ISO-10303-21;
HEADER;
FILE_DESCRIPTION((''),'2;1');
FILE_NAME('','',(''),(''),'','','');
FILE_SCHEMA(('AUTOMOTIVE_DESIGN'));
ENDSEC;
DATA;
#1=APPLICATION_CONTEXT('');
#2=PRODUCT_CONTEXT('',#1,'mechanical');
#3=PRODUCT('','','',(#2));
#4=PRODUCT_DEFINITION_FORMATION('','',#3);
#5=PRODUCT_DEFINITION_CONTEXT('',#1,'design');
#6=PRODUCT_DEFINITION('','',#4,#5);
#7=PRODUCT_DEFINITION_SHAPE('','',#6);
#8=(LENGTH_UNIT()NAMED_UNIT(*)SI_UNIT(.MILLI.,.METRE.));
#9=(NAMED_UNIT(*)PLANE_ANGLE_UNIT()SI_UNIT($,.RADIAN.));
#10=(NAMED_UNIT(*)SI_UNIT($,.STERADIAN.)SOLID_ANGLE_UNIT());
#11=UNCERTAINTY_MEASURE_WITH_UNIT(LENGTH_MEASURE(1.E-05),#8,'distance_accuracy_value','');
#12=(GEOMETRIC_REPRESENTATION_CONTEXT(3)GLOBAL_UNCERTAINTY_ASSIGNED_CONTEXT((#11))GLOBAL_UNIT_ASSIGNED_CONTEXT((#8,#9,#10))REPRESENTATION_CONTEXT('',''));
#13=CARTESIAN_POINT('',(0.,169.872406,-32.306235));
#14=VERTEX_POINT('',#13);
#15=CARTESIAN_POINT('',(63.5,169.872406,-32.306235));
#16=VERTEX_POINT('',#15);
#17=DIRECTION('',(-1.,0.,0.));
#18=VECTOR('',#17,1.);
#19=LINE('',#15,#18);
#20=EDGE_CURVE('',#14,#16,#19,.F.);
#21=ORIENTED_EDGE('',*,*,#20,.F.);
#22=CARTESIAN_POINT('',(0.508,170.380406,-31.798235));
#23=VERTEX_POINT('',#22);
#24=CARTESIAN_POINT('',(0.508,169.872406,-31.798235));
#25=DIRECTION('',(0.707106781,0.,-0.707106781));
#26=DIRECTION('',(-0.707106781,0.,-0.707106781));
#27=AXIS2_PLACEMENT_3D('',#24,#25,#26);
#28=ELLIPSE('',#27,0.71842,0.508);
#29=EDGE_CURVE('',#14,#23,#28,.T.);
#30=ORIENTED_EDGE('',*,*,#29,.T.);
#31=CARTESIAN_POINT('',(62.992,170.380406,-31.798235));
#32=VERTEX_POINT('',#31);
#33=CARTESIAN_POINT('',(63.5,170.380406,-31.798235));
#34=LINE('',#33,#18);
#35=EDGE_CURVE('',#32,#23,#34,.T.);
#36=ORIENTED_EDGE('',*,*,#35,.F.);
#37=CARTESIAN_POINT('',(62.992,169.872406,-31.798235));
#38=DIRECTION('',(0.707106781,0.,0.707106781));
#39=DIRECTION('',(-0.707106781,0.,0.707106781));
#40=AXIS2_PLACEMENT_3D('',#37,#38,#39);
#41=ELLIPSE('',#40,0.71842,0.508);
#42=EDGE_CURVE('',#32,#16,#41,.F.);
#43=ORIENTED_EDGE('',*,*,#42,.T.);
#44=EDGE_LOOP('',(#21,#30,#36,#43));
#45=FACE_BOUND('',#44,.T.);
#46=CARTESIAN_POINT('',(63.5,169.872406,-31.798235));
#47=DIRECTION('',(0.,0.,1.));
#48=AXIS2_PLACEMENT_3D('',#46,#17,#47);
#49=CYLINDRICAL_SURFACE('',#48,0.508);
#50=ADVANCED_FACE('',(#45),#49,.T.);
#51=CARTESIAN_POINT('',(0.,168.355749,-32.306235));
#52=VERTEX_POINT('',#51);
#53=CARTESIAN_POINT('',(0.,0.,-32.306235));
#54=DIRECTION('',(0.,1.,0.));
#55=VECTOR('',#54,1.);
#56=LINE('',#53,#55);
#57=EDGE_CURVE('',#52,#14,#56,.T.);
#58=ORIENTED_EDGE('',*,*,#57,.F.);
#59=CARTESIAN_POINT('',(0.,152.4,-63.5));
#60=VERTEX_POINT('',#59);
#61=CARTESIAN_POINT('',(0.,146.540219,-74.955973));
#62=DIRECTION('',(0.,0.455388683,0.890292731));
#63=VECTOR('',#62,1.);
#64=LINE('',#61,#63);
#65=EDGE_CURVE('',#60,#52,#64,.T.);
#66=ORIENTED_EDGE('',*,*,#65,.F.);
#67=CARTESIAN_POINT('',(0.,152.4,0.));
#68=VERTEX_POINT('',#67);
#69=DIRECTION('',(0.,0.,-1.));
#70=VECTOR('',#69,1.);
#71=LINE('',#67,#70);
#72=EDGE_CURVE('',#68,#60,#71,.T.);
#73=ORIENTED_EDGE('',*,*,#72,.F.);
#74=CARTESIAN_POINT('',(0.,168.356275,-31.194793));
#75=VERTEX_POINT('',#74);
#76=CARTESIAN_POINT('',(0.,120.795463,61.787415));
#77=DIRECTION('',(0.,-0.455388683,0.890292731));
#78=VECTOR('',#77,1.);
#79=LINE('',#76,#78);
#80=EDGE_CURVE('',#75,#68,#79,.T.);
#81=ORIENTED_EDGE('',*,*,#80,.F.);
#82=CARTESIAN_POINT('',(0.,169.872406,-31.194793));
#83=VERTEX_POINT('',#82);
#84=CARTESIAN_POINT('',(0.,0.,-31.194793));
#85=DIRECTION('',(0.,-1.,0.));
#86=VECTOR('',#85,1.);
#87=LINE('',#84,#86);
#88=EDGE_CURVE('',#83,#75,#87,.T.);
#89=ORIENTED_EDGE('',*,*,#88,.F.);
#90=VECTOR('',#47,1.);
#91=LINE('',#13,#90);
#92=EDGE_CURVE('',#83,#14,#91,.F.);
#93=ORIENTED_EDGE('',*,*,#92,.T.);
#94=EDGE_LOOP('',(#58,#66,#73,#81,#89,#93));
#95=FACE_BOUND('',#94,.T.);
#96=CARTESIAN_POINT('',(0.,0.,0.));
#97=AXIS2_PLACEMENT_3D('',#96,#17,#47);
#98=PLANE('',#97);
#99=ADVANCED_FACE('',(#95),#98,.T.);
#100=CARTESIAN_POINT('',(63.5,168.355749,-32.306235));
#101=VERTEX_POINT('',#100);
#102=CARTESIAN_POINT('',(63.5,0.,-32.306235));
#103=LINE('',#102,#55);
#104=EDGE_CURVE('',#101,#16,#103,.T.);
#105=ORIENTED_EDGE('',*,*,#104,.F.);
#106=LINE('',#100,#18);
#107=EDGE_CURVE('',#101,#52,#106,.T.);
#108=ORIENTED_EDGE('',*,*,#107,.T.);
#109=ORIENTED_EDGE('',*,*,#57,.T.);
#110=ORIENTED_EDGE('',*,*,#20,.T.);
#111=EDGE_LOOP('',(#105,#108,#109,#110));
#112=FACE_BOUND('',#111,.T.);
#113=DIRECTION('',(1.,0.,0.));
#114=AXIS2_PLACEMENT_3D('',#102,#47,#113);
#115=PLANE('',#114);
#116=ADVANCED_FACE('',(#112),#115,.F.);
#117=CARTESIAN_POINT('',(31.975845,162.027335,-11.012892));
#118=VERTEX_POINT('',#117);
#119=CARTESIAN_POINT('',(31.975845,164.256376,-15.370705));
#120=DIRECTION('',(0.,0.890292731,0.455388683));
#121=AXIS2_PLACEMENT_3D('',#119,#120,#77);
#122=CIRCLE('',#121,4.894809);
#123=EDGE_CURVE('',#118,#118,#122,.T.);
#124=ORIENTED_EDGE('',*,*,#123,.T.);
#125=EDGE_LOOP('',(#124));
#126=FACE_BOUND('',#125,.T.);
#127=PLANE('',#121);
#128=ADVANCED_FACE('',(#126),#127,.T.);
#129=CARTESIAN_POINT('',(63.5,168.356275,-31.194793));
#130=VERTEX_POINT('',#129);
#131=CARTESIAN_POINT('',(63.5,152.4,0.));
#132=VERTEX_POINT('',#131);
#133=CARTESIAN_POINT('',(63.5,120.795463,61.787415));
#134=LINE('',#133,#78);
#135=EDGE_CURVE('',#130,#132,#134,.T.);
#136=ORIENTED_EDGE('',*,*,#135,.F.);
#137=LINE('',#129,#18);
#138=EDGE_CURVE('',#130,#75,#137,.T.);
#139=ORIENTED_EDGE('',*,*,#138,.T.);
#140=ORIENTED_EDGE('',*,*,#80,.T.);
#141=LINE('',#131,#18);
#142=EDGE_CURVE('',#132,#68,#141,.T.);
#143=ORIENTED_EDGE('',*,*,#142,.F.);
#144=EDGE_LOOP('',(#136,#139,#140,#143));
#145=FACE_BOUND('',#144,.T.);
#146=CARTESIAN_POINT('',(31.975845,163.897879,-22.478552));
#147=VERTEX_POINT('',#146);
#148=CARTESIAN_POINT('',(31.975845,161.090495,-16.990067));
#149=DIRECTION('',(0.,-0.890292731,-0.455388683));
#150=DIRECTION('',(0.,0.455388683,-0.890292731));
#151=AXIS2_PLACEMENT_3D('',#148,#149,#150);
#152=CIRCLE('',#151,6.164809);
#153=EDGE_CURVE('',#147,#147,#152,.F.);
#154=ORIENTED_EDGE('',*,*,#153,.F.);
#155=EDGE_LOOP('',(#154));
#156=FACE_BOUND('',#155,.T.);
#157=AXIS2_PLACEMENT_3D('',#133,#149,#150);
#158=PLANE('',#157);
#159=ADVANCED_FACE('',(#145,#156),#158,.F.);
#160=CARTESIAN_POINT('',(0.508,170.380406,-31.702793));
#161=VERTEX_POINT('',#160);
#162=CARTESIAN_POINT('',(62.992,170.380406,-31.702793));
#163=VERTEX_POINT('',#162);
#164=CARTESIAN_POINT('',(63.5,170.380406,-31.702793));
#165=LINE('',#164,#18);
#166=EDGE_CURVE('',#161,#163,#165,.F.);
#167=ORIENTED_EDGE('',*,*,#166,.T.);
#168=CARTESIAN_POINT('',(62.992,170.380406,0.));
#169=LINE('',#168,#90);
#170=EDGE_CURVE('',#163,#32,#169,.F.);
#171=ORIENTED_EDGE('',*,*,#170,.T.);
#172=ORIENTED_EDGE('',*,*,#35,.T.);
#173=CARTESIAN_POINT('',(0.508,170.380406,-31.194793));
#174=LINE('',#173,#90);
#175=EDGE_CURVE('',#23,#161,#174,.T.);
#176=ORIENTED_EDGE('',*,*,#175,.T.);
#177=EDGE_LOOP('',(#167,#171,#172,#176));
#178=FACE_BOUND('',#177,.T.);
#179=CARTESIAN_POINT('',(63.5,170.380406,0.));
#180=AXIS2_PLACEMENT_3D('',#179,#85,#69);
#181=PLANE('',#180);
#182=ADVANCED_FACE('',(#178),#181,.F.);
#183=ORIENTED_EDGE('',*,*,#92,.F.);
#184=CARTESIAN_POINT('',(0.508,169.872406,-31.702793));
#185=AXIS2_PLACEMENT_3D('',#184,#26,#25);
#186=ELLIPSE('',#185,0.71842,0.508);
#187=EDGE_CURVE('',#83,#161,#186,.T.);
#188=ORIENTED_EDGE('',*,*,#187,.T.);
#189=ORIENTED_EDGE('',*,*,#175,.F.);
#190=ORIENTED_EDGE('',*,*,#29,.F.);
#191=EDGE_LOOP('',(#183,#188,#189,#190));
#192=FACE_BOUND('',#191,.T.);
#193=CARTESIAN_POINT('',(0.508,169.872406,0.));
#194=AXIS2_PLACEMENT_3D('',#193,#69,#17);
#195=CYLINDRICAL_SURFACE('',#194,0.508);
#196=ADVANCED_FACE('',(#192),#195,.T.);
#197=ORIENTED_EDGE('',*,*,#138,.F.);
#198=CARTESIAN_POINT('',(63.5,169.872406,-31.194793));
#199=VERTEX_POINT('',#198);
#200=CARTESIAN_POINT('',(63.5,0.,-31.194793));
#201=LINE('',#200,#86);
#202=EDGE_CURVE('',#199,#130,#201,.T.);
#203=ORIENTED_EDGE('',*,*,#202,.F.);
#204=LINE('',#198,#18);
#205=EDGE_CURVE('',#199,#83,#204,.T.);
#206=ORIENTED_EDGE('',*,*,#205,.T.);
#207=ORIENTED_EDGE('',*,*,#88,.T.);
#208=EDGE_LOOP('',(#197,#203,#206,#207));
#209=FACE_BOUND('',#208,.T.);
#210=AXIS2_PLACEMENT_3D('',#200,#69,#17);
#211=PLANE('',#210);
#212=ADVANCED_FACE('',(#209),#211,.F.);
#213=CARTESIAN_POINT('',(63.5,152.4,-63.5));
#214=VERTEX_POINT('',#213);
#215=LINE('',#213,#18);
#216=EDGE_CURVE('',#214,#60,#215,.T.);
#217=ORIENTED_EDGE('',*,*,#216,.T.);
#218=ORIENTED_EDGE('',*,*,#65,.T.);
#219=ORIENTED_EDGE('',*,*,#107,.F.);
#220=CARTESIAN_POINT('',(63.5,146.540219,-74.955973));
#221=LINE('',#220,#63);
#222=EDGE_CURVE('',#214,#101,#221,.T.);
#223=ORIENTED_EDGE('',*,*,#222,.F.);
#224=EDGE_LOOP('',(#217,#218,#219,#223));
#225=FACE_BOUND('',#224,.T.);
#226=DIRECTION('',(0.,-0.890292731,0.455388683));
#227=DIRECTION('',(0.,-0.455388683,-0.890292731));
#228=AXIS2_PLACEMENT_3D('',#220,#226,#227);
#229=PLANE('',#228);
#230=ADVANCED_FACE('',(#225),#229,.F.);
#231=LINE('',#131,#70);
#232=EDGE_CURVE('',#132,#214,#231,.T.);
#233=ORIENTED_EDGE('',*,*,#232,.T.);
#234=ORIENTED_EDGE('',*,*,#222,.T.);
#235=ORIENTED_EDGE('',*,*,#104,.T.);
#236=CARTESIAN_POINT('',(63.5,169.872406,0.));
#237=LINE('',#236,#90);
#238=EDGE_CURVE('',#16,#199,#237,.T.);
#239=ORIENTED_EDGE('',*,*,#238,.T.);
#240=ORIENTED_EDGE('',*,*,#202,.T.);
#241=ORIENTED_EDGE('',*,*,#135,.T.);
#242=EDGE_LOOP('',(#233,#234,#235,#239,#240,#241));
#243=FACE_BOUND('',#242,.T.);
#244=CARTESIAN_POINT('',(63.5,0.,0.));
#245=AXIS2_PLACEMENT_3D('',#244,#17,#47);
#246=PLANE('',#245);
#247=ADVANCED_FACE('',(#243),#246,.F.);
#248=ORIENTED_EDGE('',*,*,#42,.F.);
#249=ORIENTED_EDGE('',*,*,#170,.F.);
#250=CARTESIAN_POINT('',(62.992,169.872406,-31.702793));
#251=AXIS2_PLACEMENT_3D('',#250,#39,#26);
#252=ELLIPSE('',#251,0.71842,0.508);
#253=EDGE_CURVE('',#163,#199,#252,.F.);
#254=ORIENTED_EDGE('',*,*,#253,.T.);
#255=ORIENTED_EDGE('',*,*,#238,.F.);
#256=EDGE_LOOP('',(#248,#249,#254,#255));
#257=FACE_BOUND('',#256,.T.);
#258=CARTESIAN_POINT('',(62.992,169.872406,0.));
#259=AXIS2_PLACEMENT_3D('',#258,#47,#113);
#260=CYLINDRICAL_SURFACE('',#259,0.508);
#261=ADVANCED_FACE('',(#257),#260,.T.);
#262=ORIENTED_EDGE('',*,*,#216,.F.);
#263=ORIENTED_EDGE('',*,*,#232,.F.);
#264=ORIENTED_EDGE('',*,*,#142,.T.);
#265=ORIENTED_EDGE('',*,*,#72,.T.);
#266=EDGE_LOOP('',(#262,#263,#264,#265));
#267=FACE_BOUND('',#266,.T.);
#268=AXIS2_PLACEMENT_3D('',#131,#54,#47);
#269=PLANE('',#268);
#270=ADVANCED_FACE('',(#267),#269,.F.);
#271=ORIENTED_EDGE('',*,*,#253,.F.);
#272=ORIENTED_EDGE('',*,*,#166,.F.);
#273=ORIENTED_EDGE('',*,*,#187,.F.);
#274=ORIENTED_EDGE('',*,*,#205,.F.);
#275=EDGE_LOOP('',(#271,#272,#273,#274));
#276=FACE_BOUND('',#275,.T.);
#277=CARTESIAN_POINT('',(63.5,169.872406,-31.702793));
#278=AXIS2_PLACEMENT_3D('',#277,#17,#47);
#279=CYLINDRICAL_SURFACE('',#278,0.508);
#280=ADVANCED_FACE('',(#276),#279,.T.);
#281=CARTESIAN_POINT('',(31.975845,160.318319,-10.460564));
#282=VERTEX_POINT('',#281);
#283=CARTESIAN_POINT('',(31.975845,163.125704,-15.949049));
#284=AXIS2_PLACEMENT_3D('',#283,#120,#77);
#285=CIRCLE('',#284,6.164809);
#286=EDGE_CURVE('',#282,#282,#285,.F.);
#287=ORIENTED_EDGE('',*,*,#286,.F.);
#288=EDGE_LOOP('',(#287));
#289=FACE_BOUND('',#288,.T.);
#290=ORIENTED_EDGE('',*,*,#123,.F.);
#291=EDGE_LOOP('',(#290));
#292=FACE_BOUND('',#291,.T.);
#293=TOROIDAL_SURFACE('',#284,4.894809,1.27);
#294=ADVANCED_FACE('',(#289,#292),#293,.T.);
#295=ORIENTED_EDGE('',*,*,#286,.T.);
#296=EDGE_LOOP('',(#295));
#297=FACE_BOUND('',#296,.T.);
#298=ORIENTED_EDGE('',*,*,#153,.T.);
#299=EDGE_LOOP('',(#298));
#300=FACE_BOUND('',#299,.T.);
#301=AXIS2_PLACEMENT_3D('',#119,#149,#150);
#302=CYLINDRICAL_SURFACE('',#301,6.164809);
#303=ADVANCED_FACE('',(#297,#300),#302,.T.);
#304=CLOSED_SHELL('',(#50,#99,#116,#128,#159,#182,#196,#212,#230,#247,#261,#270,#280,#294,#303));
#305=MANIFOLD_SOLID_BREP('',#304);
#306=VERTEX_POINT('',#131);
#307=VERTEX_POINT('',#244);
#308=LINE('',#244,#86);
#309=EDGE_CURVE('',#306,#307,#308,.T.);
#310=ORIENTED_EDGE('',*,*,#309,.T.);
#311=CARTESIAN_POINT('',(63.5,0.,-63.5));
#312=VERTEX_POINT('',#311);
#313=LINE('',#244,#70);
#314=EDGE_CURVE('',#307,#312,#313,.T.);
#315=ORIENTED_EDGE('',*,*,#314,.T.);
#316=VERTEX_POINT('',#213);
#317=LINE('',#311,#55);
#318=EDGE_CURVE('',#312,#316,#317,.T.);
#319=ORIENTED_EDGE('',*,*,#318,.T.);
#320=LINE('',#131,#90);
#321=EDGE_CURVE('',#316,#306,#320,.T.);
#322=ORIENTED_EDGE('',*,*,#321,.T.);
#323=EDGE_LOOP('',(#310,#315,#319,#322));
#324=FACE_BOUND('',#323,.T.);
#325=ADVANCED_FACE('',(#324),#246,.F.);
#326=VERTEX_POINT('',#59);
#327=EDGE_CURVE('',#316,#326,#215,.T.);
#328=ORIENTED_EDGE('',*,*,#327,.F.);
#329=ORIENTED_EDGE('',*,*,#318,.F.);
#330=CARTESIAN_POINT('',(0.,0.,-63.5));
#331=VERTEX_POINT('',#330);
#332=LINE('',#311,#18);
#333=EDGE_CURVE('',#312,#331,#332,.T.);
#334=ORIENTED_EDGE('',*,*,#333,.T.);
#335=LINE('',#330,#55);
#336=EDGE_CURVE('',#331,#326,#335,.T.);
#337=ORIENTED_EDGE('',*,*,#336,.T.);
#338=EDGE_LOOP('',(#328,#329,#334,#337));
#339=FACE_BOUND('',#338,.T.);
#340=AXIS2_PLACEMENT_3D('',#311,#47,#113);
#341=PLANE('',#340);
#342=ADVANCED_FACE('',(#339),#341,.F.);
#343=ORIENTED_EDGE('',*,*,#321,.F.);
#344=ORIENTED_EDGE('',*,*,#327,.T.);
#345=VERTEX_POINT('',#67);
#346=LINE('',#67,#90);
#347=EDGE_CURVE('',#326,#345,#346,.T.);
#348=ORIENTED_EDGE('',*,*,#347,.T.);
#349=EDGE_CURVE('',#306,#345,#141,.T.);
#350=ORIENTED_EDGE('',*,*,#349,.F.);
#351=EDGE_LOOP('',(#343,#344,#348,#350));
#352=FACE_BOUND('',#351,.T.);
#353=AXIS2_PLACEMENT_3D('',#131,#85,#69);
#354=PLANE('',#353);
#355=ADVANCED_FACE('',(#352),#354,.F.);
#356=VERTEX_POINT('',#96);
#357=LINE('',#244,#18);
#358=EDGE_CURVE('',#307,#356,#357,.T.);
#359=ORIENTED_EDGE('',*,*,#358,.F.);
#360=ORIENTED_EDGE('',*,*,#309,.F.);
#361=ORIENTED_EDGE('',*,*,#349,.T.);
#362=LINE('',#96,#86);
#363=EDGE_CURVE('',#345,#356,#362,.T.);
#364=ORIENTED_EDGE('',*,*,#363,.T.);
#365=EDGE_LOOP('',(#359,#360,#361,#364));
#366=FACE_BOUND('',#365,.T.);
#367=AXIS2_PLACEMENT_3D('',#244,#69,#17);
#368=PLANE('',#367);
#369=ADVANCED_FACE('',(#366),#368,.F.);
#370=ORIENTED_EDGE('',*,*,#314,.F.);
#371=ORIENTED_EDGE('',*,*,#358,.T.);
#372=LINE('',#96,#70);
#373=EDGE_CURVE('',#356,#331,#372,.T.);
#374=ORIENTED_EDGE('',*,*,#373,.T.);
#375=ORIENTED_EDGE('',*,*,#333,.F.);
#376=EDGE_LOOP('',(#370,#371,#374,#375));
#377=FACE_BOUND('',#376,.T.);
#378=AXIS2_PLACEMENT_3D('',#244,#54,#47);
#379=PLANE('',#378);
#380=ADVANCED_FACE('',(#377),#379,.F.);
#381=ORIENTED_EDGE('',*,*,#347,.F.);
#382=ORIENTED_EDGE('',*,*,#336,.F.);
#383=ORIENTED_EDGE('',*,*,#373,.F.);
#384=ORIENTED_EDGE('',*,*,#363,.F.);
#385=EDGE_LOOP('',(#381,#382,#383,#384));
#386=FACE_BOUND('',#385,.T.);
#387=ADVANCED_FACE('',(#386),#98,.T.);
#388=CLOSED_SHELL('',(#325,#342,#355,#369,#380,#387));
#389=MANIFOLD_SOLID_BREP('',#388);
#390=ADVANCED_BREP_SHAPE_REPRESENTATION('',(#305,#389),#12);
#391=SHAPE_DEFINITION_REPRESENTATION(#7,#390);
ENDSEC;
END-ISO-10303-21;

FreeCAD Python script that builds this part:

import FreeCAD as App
import Part
import Sketcher
Q = App.Units.Quantity


def edges_at(feature, points):
    """Names of the edges that pass closest to the given points."""
    edges = feature.Shape.Edges
    near = lambda p: min(range(len(edges)), key=lambda i: edges[i].distToShape(Part.Vertex(*p))[0])
    return sorted({f"Edge{near(p) + 1}" for p in points})


def add_polygon(sketch, points):
    """Adds a closed chain of lines whose ends are joined by coincident constraints."""
    first, n = sketch.GeometryCount, len(points)
    for a, b in zip(points, points[1:] + points[:1]):
        sketch.addGeometry(Part.LineSegment(App.Vector(*a, 0), App.Vector(*b, 0)), False)
    for i in range(n):
        sketch.addConstraint(Sketcher.Constraint("Coincident", first + i, 2, first + (i + 1) % n, 1))

doc = App.newDocument("Part")
body = doc.addObject("PartDesign::Body", "Body")

# Sketch on YZ plane
sketch1 = body.newObject("Sketcher::SketchObject", "Sketch")
sketch1.AttachmentSupport = (doc.getObject("YZ_Plane"), [""])
sketch1.MapMode = "FlatFace"
add_polygon(sketch1, [(152, 0), (0, 0), (0, -64), (152, -64)])  # lines 0-3
sketch1.addConstraint([
    Sketcher.Constraint("Horizontal", 0),
    Sketcher.Constraint("Vertical", 1),
    Sketcher.Constraint("Horizontal", 2),
    Sketcher.Constraint("Vertical", 3),
    Sketcher.Constraint("Coincident", 0, 2, -1, 1),
    Sketcher.Constraint("DistanceX", 0, 2, 0, 1, Q("6 in")),
    Sketcher.Constraint("DistanceY", 1, 2, 1, 1, Q("2.5 in")),
])
pad1 = body.newObject("PartDesign::Pad", "Pad")
pad1.Profile = sketch1
pad1.Length = Q("2.5 in")
body2 = doc.addObject("PartDesign::Body", "Body001")

# Sketch on YZ plane
sketch2 = body2.newObject("Sketcher::SketchObject", "Sketch001")
sketch2.AttachmentSupport = (doc.getObject("YZ_Plane001"), [""])
sketch2.MapMode = "FlatFace"
add_polygon(sketch2, [(152.4, 0), (168.4, -31.2), (170.4, -31.2), (170.4, -32.3), (168.4, -32.3), (152.4, -63.5)])  # lines 0-5
sketch2.addConstraint([
    Sketcher.Constraint("Horizontal", 1),
    Sketcher.Constraint("Vertical", 2),
    Sketcher.Constraint("Horizontal", 3),
    Sketcher.Constraint("Vertical", 5),
    Sketcher.Constraint("PointOnObject", 5, 2, -1),
    Sketcher.Constraint("DistanceY", 5, 1, 5, 2, Q("2.5 in")),
    Sketcher.Constraint("DistanceX", -1, 1, 4, 2, Q("6 in")),
    Sketcher.Constraint("DistanceX", -1, 1, 0, 2, Q("6.6281998 in")),
    Sketcher.Constraint("DistanceX", 1, 1, 1, 2, 2.024131),
    Sketcher.Constraint("Distance", 4, 35.03765),
    Sketcher.Constraint("DistanceX", 3, 2, 3, 1, 2.024656),
    Sketcher.Constraint("DistanceY", 2, 2, 2, 1, 1.111442),
])
pad2 = body2.newObject("PartDesign::Pad", "Pad001")
pad2.Profile = sketch2
pad2.Length = Q("2.5 in")
doc.recompute()

fillet = body2.newObject("PartDesign::Fillet", "Fillet")
fillet.Base = (pad2, edges_at(pad2, [
    (31.75, 170.38, -32.306),
    (31.75, 170.38, -31.195),
    (63.5, 170.38, -31.751),
    (0, 170.38, -31.751),
]))
fillet.Radius = Q("0.02 in")

# Sketch on an angled plane
sketch3 = body2.newObject("Sketcher::SketchObject", "Sketch002")
sketch3.Placement = App.Placement(App.Vector(0, 120.795463, 61.787415), App.Rotation(App.Vector(1, 0, 0), App.Vector(0, 0.455388683, -0.890292731), App.Vector(0, 0.890292731, 0.455388683), "ZXY"))
sketch3.addGeometry(Part.Circle(App.Vector(32, 88, 0), App.Vector(0, 0, 1), 6), False)
sketch3.addConstraint([
    Sketcher.Constraint("Diameter", 0, 12.329619),
    Sketcher.Constraint("DistanceY", -1, 1, 0, 3, 88.484921),
    Sketcher.Constraint("DistanceX", -1, 1, 0, 3, 31.975845),
])
pad3 = body2.newObject("PartDesign::Pad", "Pad002")
pad3.Profile = sketch3
pad3.Length = Q("0.14 in")
doc.recompute()

fillet2 = body2.newObject("PartDesign::Fillet", "Fillet001")
fillet2.Base = (pad3, edges_at(pad3, [(31.976, 161.449, -9.882)]))
fillet2.Radius = Q("0.05 in")

doc.recompute()
